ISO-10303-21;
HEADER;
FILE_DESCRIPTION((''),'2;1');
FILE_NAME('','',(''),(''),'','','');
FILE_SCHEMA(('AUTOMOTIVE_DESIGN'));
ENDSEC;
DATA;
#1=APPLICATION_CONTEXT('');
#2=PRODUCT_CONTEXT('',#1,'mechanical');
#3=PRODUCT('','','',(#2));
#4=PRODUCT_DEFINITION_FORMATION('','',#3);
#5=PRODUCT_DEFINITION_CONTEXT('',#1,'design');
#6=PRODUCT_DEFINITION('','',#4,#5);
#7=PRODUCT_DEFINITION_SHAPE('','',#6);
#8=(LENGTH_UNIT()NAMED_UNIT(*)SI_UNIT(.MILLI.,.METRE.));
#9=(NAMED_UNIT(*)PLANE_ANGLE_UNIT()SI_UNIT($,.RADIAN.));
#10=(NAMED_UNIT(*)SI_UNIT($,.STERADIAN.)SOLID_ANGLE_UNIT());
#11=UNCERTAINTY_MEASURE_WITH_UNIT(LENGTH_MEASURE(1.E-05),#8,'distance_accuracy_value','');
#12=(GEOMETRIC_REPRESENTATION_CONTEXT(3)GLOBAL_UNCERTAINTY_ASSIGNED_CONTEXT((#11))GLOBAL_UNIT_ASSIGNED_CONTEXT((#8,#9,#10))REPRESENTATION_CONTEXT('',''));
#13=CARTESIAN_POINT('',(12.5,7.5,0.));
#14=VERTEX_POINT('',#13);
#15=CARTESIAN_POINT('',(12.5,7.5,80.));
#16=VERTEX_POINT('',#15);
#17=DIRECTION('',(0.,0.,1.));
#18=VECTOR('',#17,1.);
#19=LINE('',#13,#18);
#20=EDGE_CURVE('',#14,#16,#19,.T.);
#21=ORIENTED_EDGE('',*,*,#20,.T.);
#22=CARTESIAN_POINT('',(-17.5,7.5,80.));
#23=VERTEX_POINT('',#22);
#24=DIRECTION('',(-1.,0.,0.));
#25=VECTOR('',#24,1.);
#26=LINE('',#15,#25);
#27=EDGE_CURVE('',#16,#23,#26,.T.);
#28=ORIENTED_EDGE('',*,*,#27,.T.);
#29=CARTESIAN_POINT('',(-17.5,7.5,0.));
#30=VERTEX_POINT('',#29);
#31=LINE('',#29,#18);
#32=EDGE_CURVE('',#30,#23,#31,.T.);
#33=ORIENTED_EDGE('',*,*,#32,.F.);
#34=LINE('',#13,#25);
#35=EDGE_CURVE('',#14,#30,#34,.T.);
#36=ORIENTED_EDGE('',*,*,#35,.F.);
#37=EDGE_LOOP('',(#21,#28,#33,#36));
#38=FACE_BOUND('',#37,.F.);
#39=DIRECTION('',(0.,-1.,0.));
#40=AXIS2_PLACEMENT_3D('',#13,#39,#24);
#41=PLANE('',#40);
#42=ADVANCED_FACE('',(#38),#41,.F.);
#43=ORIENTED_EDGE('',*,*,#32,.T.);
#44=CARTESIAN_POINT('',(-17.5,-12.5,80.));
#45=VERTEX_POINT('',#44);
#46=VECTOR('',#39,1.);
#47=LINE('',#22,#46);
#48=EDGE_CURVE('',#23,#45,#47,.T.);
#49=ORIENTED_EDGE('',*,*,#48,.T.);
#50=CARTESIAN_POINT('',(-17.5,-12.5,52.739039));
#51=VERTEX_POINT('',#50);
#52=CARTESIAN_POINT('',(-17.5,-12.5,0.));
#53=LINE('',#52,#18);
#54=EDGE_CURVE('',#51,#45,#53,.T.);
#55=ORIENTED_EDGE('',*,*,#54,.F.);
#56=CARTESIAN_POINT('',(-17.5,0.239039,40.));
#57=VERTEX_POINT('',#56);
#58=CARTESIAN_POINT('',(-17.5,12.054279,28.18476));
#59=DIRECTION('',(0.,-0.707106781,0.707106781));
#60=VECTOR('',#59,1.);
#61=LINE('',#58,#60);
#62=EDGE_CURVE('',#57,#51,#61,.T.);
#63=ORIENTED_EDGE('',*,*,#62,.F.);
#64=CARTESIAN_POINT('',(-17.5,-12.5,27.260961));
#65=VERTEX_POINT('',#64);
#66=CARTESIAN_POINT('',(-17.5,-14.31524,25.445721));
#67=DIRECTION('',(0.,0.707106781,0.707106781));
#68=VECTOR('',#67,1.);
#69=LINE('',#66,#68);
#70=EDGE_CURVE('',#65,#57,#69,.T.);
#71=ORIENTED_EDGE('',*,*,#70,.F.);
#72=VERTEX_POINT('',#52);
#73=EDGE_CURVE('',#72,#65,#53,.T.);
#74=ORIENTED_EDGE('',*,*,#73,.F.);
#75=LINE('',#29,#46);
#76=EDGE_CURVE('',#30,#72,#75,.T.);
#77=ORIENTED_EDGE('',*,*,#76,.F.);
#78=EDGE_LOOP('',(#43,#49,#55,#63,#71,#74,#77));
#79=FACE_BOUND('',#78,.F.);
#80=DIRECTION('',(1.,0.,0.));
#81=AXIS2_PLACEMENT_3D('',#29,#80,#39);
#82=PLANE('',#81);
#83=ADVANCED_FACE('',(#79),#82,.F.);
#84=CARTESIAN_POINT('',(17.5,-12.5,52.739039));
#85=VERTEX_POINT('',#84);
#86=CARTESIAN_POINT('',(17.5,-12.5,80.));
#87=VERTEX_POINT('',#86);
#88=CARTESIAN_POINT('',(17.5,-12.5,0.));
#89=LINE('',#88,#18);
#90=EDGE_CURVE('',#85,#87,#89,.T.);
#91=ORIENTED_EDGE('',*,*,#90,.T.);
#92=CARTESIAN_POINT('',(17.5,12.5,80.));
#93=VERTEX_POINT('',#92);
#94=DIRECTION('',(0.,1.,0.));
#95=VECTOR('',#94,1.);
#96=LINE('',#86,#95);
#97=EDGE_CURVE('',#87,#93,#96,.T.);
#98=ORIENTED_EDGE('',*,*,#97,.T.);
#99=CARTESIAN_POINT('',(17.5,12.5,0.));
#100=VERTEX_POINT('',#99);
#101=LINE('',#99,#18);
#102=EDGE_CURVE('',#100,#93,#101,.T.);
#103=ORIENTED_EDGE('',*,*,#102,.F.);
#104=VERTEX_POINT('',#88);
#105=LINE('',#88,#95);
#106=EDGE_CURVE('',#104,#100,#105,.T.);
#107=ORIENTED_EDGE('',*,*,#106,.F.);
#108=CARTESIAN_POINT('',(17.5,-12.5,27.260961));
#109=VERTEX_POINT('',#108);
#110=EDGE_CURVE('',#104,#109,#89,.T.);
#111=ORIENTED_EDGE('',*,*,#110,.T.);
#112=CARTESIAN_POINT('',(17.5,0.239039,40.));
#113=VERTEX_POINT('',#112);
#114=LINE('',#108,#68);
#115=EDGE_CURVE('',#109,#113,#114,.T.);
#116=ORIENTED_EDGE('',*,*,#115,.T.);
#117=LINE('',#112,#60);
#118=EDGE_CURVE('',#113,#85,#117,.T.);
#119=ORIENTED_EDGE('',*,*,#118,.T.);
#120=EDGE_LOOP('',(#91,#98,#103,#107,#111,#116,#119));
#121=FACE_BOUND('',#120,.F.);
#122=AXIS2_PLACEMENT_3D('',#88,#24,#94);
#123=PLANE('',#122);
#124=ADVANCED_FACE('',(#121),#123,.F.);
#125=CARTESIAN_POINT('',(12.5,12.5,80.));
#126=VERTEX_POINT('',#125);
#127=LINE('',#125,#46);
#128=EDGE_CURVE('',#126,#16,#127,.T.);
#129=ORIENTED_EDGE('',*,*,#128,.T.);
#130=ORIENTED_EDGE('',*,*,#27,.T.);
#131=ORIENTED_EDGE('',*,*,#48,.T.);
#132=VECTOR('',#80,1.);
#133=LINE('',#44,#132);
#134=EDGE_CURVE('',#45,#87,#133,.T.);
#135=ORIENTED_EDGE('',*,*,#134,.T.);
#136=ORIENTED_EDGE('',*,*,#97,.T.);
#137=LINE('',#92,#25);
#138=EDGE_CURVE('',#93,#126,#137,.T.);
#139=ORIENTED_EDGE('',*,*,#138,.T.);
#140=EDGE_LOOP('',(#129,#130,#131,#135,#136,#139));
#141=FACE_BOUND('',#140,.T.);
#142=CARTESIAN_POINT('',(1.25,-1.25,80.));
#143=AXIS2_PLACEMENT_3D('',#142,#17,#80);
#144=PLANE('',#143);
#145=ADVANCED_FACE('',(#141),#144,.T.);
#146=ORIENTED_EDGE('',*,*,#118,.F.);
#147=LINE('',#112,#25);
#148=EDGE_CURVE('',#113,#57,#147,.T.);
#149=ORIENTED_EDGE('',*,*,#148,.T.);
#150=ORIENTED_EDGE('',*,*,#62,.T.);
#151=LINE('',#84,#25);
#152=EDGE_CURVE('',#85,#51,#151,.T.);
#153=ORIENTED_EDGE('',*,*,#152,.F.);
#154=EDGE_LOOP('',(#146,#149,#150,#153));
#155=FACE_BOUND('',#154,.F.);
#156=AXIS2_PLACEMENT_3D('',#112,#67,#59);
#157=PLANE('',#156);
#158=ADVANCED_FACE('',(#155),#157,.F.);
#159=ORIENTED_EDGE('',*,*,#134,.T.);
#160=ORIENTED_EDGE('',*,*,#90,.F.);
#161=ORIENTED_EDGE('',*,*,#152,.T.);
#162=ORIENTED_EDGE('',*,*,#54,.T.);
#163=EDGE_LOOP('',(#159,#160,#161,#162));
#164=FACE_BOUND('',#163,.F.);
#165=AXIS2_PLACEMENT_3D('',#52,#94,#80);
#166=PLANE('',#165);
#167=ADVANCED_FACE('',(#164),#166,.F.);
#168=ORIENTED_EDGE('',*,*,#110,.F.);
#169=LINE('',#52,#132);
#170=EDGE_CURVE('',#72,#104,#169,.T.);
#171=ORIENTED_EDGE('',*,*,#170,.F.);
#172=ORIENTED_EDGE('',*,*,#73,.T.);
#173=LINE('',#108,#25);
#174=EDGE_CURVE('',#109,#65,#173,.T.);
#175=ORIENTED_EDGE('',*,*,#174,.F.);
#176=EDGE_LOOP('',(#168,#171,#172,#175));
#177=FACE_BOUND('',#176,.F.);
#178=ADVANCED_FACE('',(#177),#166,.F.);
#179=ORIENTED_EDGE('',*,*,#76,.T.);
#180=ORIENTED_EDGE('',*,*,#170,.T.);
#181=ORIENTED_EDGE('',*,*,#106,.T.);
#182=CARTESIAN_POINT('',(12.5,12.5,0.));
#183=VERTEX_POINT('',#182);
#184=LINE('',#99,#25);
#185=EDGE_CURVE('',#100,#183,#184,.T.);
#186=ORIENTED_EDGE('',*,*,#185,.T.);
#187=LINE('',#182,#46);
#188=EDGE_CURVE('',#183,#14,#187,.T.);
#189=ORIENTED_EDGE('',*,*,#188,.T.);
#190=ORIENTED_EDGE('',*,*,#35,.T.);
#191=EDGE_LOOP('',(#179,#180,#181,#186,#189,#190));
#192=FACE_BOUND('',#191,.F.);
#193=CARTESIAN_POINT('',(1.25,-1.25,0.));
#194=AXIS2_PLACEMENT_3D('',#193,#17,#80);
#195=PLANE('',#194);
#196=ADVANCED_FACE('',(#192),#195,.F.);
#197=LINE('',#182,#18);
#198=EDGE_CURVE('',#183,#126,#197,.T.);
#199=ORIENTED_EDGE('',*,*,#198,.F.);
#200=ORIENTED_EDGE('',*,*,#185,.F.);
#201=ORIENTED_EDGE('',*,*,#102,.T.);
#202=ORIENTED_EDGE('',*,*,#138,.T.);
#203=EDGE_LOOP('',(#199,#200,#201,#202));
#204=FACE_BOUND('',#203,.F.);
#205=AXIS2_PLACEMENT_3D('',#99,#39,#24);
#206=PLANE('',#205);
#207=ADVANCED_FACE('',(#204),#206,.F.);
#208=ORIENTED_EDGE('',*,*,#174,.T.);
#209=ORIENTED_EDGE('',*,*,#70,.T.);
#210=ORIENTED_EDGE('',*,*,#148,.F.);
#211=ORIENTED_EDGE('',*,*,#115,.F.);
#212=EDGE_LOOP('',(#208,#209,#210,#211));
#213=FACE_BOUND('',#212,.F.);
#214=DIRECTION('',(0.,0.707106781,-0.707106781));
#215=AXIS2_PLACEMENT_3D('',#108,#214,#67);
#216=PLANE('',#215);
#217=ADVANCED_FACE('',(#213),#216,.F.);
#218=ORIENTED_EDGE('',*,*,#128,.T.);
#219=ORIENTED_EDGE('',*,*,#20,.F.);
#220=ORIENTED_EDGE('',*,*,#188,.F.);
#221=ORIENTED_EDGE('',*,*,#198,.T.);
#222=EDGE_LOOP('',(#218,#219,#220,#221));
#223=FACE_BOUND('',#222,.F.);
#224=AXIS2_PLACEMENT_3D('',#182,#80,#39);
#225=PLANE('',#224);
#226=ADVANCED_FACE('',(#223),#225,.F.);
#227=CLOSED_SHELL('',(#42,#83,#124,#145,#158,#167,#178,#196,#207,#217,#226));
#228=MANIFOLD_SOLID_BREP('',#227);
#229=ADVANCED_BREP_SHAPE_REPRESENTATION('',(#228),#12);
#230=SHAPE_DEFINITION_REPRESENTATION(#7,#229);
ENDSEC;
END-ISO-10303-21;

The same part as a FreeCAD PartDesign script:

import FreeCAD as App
import Part
import Sketcher
Q = App.Units.Quantity

doc = App.newDocument("Part")
body = doc.addObject("PartDesign::Body", "Body")

sketch1 = body.newObject("Sketcher::SketchObject", "Sketch")
sketch1.AttachmentSupport = (doc.getObject("XY_Plane"), [""])
sketch1.MapMode = "FlatFace"
sketch1.addGeometry([
    Part.LineSegment(App.Vector(18, 12, 0), App.Vector(12, 12, 0)),
    Part.LineSegment(App.Vector(12, 12, 0), App.Vector(12, 8, 0)),
    Part.LineSegment(App.Vector(12, 8, 0), App.Vector(-18, 8, 0)),
    Part.LineSegment(App.Vector(-18, 8, 0), App.Vector(-18, -12, 0)),
    Part.LineSegment(App.Vector(-18, -12, 0), App.Vector(18, -12, 0)),
    Part.LineSegment(App.Vector(18, -12, 0), App.Vector(18, 12, 0)),
], False)
sketch1.addConstraint([
    Sketcher.Constraint("Coincident", 0, 2, 1, 1),
    Sketcher.Constraint("Coincident", 1, 2, 2, 1),
    Sketcher.Constraint("Coincident", 2, 2, 3, 1),
    Sketcher.Constraint("Coincident", 3, 2, 4, 1),
    Sketcher.Constraint("Coincident", 4, 2, 5, 1),
    Sketcher.Constraint("Coincident", 5, 2, 0, 1),
    Sketcher.Constraint("Horizontal", 0),
    Sketcher.Constraint("Vertical", 1),
    Sketcher.Constraint("Horizontal", 2),
    Sketcher.Constraint("Vertical", 3),
    Sketcher.Constraint("Horizontal", 4),
    Sketcher.Constraint("Vertical", 5),
    Sketcher.Constraint("Symmetric", 3, 2, 5, 2, -1, 1),
    Sketcher.Constraint("Equal", 0, 1),
    Sketcher.Constraint("DistanceX", 0, 2, 0, 1, Q("5 mm")),
    Sketcher.Constraint("DistanceX", 2, 2, 2, 1, Q("30 mm")),
    Sketcher.Constraint("DistanceY", 3, 2, 3, 1, Q("20 mm")),
])
pad1 = body.newObject("PartDesign::Pad", "Pad")
pad1.Profile = sketch1
pad1.Length = 80

sketch2 = body.newObject("Sketcher::SketchObject", "Sketch001")
sketch2.AttachmentSupport = (doc.getObject("YZ_Plane"), [""])
sketch2.MapMode = "FlatFace"
sketch2.AttachmentOffset = App.Placement(App.Vector(0, 0, 17.5), App.Rotation())
sketch2.addGeometry([
    Part.LineSegment(App.Vector(0, 40, 0), App.Vector(-12, 53, 0)),
    Part.LineSegment(App.Vector(-12, 53, 0), App.Vector(-12, 27, 0)),
    Part.LineSegment(App.Vector(-12, 27, 0), App.Vector(0, 40, 0)),
], False)
sketch2.addConstraint([
    Sketcher.Constraint("Coincident", 0, 2, 1, 1),
    Sketcher.Constraint("Coincident", 1, 2, 2, 1),
    Sketcher.Constraint("Coincident", 2, 2, 0, 1),
    Sketcher.Constraint("Vertical", 1),
    Sketcher.Constraint("Perpendicular", 0, 2),
    Sketcher.Constraint("Equal", 0, 2),
    Sketcher.Constraint("DistanceY", -1, 1, 2, 2, Q("40 mm")),
    Sketcher.Constraint("DistanceX", 0, 2, -1, 1, Q("12.5 mm")),
    Sketcher.Constraint("Distance", 0, Q("18.015722 mm")),
])
pocket1 = body.newObject("PartDesign::Pocket", "Pocket")
pocket1.Profile = sketch2
pocket1.Type = "ThroughAll"

doc.recompute()
